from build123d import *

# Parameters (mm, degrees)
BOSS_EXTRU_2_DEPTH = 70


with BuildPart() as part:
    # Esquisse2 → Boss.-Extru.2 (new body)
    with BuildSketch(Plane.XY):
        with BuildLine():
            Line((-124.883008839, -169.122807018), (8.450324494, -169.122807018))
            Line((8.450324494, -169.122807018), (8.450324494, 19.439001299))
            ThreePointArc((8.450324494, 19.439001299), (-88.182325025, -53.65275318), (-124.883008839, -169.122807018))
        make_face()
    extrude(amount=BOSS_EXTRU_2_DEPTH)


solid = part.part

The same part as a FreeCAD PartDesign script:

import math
import FreeCAD as App
import Part
import Sketcher
from FreeCAD import Vector

doc = App.newDocument("Part")
params = doc.addObject("Spreadsheet::Sheet", "Params")
for row, (alias, value) in enumerate([
    ("sketch1_radius", "200 mm"),
    ("pad1_length", "70 mm"),
], start=1):
    params.set(f"A{row}", alias)
    params.set(f"B{row}", "=" + value)
    params.setAlias(f"B{row}", alias)

body = doc.addObject("PartDesign::Body", "Body")

# Sketch on XY plane
sketch1 = body.newObject("Sketcher::SketchObject", "Sketch")
sketch1.AttachmentSupport = (doc.getObject("XY_Plane"), [""])
sketch1.MapMode = "FlatFace"
sketch1.addGeometry([
    Part.LineSegment(Vector(-124.883009, -169.122807, 0), Vector(8.450324, -169.122807, 0)),
    Part.LineSegment(Vector(8.450324, -169.122807, 0), Vector(8.450324, 19.439001, 0)),
    Part.ArcOfCircle(Part.Circle(Vector(75.116991, -169.122807, 0), Vector(0, 0, 1), 200), math.radians(109.471221), math.radians(180)),
], False)
sketch1.addConstraint([
    Sketcher.Constraint("Coincident", 0, 2, 1, 1),
    Sketcher.Constraint("Coincident", 1, 2, 2, 1),
    Sketcher.Constraint("Coincident", 2, 2, 0, 1),
    Sketcher.Constraint("Horizontal", 0),
    Sketcher.Constraint("Vertical", 1),
    Sketcher.Constraint("Horizontal", 2, 3, 0, 2),
    Sketcher.Constraint("Radius", 2, 200.0),
    Sketcher.Constraint("DistanceY", -1, 1, 1, 2, 19.439001),
    Sketcher.Constraint("DistanceY", 1, 1, 1, 2, 188.561808),
    Sketcher.Constraint("DistanceX", -1, 1, 2, 3, 75.116991),
])
sketch1.setExpression("Constraints[6]", "Params.sketch1_radius")
pad1 = body.newObject("PartDesign::Pad", "Pad")
pad1.Profile = sketch1
pad1.setExpression("Length", "Params.pad1_length")

doc.recompute()
